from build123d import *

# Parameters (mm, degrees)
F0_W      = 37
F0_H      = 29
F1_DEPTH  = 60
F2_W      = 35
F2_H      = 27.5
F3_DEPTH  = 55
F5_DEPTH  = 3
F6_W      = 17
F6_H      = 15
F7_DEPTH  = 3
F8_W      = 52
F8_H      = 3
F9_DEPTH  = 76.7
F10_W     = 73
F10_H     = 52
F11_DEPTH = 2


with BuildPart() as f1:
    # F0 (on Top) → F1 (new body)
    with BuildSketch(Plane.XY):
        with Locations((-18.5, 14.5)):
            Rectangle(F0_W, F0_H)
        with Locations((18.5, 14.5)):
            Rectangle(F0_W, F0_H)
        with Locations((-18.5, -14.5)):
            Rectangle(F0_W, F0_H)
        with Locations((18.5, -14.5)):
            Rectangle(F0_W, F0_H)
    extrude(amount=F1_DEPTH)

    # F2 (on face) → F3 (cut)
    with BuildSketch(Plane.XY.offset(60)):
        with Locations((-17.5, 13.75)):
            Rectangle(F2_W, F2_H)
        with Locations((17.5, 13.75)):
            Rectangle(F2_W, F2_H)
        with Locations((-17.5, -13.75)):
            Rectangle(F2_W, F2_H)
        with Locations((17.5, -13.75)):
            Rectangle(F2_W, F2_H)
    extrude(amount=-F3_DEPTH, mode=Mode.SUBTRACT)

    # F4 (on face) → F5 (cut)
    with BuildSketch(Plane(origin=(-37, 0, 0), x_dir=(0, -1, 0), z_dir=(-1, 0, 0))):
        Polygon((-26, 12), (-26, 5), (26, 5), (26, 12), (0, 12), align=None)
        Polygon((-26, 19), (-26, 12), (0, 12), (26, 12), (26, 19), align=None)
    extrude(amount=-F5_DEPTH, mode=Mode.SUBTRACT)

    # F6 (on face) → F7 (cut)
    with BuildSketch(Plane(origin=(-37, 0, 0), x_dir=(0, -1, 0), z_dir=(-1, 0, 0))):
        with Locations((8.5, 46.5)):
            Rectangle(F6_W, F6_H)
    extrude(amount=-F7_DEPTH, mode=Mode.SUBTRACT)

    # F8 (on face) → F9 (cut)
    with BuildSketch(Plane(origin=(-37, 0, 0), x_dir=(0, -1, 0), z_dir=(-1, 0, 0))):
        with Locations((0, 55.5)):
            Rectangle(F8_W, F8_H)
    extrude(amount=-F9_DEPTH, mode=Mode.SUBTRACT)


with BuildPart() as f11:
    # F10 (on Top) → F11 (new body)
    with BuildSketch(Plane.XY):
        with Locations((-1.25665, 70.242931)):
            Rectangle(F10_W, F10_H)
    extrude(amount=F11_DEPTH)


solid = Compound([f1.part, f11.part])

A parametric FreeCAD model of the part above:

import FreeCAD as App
import Part
import Sketcher


def add_polygon(sketch, points):
    """Adds a closed chain of lines whose ends are joined by coincident constraints."""
    first, n = sketch.GeometryCount, len(points)
    for a, b in zip(points, points[1:] + points[:1]):
        sketch.addGeometry(Part.LineSegment(App.Vector(*a, 0), App.Vector(*b, 0)), False)
    for i in range(n):
        sketch.addConstraint(Sketcher.Constraint("Coincident", first + i, 2, first + (i + 1) % n, 1))

doc = App.newDocument("Part")
body = doc.addObject("PartDesign::Body", "Body")

# Sketch on XY plane
sketch1 = body.newObject("Sketcher::SketchObject", "Sketch")
sketch1.AttachmentSupport = (doc.getObject("XY_Plane"), [""])
sketch1.MapMode = "FlatFace"
add_polygon(sketch1, [(-37, 29), (-37, -29), (37, -29), (37, 29)])  # lines 0-3
sketch1.addConstraint([
    Sketcher.Constraint("Vertical", 0),
    Sketcher.Constraint("Horizontal", 1),
    Sketcher.Constraint("Vertical", 2),
    Sketcher.Constraint("Horizontal", 3),
    Sketcher.Constraint("Symmetric", 0, 2, 2, 2, -1, 1),
    Sketcher.Constraint("DistanceX", 1, 1, 1, 2, 74.0),
    Sketcher.Constraint("DistanceY", 0, 2, 0, 1, 58.0),
])
pad1 = body.newObject("PartDesign::Pad", "Pad")
pad1.Profile = sketch1
pad1.Length = 60

# Sketch on XY plane
sketch2 = body.newObject("Sketcher::SketchObject", "Sketch001")
sketch2.AttachmentSupport = (doc.getObject("XY_Plane"), [""])
sketch2.MapMode = "FlatFace"
sketch2.AttachmentOffset = App.Placement(App.Vector(0, 0, 60), App.Rotation())
add_polygon(sketch2, [(-35, 28), (-35, -28), (35, -28), (35, 28)])  # lines 0-3
sketch2.addConstraint([
    Sketcher.Constraint("Vertical", 0),
    Sketcher.Constraint("Horizontal", 1),
    Sketcher.Constraint("Vertical", 2),
    Sketcher.Constraint("Horizontal", 3),
    Sketcher.Constraint("Symmetric", 0, 2, 2, 2, -1, 1),
    Sketcher.Constraint("DistanceX", 1, 1, 1, 2, 70.0),
    Sketcher.Constraint("DistanceY", 0, 2, 0, 1, 55.0),
])
pocket1 = body.newObject("PartDesign::Pocket", "Pocket")
pocket1.Profile = sketch2
pocket1.Length = 55

# Sketch on YZ plane
sketch3 = body.newObject("Sketcher::SketchObject", "Sketch002")
sketch3.AttachmentSupport = (doc.getObject("YZ_Plane"), [""])
sketch3.MapMode = "FlatFace"
sketch3.AttachmentOffset = App.Placement(App.Vector(0, 0, -37), App.Rotation())
add_polygon(sketch3, [(26, 5), (-26, 5), (-26, 19), (26, 19)])  # lines 0-3
sketch3.addConstraint([
    Sketcher.Constraint("Horizontal", 0),
    Sketcher.Constraint("Vertical", 1),
    Sketcher.Constraint("Horizontal", 2),
    Sketcher.Constraint("Vertical", 3),
    Sketcher.Constraint("DistanceX", 0, 2, 0, 1, 52.0),
    Sketcher.Constraint("DistanceY", 1, 1, 1, 2, 14.0),
    Sketcher.Constraint("DistanceX", 0, 2, -1, 1, 26.0),
    Sketcher.Constraint("DistanceY", -1, 1, 0, 2, 5.0),
])
pocket2 = body.newObject("PartDesign::Pocket", "Pocket001")
pocket2.Profile = sketch3
pocket2.Length = 3
pocket2.Reversed = True

# Sketch on YZ plane
sketch4 = body.newObject("Sketcher::SketchObject", "Sketch003")
sketch4.AttachmentSupport = (doc.getObject("YZ_Plane"), [""])
sketch4.MapMode = "FlatFace"
sketch4.AttachmentOffset = App.Placement(App.Vector(0, 0, -37), App.Rotation())
add_polygon(sketch4, [(0, 54), (0, 39), (-17, 39), (-17, 54)])  # lines 0-3
sketch4.addConstraint([
    Sketcher.Constraint("Vertical", 0),
    Sketcher.Constraint("Horizontal", 1),
    Sketcher.Constraint("Vertical", 2),
    Sketcher.Constraint("Horizontal", 3),
    Sketcher.Constraint("PointOnObject", 0, 2, -2),
    Sketcher.Constraint("DistanceX", 1, 2, 1, 1, 17.0),
    Sketcher.Constraint("DistanceY", 0, 2, 0, 1, 15.0),
    Sketcher.Constraint("DistanceY", -1, 1, 0, 2, 39.0),
])
pocket3 = body.newObject("PartDesign::Pocket", "Pocket002")
pocket3.Profile = sketch4
pocket3.Length = 3
pocket3.Reversed = True

# Sketch on YZ plane
sketch5 = body.newObject("Sketcher::SketchObject", "Sketch004")
sketch5.AttachmentSupport = (doc.getObject("YZ_Plane"), [""])
sketch5.MapMode = "FlatFace"
sketch5.AttachmentOffset = App.Placement(App.Vector(0, 0, -37), App.Rotation())
add_polygon(sketch5, [(26, 57), (26, 54), (-26, 54), (-26, 57)])  # lines 0-3
sketch5.addConstraint([
    Sketcher.Constraint("Vertical", 0),
    Sketcher.Constraint("Horizontal", 1),
    Sketcher.Constraint("Vertical", 2),
    Sketcher.Constraint("Horizontal", 3),
    Sketcher.Constraint("DistanceX", 1, 2, 1, 1, 52.0),
    Sketcher.Constraint("DistanceY", 0, 2, 0, 1, 3.0),
    Sketcher.Constraint("DistanceX", -1, 1, 0, 2, 26.0),
    Sketcher.Constraint("DistanceY", -1, 1, 0, 2, 54.0),
])
pocket4 = body.newObject("PartDesign::Pocket", "Pocket003")
pocket4.Profile = sketch5
pocket4.Length = 76.7
pocket4.Reversed = True
body2 = doc.addObject("PartDesign::Body", "Body001")

# Sketch on XY plane
sketch6 = body2.newObject("Sketcher::SketchObject", "Sketch005")
sketch6.AttachmentSupport = (doc.getObject("XY_Plane001"), [""])
sketch6.MapMode = "FlatFace"
add_polygon(sketch6, [(-38, 96), (-38, 44), (35, 44), (35, 96)])  # lines 0-3
sketch6.addConstraint([
    Sketcher.Constraint("Vertical", 0),
    Sketcher.Constraint("Horizontal", 1),
    Sketcher.Constraint("Vertical", 2),
    Sketcher.Constraint("Horizontal", 3),
    Sketcher.Constraint("DistanceX", 1, 1, 1, 2, 73.0),
    Sketcher.Constraint("DistanceY", 0, 2, 0, 1, 52.0),
    Sketcher.Constraint("DistanceX", 0, 2, -1, 1, 37.75665),
    Sketcher.Constraint("DistanceY", -1, 1, 0, 2, 44.242931),
])
pad2 = body2.newObject("PartDesign::Pad", "Pad001")
pad2.Profile = sketch6
pad2.Length = 2

doc.recompute()
